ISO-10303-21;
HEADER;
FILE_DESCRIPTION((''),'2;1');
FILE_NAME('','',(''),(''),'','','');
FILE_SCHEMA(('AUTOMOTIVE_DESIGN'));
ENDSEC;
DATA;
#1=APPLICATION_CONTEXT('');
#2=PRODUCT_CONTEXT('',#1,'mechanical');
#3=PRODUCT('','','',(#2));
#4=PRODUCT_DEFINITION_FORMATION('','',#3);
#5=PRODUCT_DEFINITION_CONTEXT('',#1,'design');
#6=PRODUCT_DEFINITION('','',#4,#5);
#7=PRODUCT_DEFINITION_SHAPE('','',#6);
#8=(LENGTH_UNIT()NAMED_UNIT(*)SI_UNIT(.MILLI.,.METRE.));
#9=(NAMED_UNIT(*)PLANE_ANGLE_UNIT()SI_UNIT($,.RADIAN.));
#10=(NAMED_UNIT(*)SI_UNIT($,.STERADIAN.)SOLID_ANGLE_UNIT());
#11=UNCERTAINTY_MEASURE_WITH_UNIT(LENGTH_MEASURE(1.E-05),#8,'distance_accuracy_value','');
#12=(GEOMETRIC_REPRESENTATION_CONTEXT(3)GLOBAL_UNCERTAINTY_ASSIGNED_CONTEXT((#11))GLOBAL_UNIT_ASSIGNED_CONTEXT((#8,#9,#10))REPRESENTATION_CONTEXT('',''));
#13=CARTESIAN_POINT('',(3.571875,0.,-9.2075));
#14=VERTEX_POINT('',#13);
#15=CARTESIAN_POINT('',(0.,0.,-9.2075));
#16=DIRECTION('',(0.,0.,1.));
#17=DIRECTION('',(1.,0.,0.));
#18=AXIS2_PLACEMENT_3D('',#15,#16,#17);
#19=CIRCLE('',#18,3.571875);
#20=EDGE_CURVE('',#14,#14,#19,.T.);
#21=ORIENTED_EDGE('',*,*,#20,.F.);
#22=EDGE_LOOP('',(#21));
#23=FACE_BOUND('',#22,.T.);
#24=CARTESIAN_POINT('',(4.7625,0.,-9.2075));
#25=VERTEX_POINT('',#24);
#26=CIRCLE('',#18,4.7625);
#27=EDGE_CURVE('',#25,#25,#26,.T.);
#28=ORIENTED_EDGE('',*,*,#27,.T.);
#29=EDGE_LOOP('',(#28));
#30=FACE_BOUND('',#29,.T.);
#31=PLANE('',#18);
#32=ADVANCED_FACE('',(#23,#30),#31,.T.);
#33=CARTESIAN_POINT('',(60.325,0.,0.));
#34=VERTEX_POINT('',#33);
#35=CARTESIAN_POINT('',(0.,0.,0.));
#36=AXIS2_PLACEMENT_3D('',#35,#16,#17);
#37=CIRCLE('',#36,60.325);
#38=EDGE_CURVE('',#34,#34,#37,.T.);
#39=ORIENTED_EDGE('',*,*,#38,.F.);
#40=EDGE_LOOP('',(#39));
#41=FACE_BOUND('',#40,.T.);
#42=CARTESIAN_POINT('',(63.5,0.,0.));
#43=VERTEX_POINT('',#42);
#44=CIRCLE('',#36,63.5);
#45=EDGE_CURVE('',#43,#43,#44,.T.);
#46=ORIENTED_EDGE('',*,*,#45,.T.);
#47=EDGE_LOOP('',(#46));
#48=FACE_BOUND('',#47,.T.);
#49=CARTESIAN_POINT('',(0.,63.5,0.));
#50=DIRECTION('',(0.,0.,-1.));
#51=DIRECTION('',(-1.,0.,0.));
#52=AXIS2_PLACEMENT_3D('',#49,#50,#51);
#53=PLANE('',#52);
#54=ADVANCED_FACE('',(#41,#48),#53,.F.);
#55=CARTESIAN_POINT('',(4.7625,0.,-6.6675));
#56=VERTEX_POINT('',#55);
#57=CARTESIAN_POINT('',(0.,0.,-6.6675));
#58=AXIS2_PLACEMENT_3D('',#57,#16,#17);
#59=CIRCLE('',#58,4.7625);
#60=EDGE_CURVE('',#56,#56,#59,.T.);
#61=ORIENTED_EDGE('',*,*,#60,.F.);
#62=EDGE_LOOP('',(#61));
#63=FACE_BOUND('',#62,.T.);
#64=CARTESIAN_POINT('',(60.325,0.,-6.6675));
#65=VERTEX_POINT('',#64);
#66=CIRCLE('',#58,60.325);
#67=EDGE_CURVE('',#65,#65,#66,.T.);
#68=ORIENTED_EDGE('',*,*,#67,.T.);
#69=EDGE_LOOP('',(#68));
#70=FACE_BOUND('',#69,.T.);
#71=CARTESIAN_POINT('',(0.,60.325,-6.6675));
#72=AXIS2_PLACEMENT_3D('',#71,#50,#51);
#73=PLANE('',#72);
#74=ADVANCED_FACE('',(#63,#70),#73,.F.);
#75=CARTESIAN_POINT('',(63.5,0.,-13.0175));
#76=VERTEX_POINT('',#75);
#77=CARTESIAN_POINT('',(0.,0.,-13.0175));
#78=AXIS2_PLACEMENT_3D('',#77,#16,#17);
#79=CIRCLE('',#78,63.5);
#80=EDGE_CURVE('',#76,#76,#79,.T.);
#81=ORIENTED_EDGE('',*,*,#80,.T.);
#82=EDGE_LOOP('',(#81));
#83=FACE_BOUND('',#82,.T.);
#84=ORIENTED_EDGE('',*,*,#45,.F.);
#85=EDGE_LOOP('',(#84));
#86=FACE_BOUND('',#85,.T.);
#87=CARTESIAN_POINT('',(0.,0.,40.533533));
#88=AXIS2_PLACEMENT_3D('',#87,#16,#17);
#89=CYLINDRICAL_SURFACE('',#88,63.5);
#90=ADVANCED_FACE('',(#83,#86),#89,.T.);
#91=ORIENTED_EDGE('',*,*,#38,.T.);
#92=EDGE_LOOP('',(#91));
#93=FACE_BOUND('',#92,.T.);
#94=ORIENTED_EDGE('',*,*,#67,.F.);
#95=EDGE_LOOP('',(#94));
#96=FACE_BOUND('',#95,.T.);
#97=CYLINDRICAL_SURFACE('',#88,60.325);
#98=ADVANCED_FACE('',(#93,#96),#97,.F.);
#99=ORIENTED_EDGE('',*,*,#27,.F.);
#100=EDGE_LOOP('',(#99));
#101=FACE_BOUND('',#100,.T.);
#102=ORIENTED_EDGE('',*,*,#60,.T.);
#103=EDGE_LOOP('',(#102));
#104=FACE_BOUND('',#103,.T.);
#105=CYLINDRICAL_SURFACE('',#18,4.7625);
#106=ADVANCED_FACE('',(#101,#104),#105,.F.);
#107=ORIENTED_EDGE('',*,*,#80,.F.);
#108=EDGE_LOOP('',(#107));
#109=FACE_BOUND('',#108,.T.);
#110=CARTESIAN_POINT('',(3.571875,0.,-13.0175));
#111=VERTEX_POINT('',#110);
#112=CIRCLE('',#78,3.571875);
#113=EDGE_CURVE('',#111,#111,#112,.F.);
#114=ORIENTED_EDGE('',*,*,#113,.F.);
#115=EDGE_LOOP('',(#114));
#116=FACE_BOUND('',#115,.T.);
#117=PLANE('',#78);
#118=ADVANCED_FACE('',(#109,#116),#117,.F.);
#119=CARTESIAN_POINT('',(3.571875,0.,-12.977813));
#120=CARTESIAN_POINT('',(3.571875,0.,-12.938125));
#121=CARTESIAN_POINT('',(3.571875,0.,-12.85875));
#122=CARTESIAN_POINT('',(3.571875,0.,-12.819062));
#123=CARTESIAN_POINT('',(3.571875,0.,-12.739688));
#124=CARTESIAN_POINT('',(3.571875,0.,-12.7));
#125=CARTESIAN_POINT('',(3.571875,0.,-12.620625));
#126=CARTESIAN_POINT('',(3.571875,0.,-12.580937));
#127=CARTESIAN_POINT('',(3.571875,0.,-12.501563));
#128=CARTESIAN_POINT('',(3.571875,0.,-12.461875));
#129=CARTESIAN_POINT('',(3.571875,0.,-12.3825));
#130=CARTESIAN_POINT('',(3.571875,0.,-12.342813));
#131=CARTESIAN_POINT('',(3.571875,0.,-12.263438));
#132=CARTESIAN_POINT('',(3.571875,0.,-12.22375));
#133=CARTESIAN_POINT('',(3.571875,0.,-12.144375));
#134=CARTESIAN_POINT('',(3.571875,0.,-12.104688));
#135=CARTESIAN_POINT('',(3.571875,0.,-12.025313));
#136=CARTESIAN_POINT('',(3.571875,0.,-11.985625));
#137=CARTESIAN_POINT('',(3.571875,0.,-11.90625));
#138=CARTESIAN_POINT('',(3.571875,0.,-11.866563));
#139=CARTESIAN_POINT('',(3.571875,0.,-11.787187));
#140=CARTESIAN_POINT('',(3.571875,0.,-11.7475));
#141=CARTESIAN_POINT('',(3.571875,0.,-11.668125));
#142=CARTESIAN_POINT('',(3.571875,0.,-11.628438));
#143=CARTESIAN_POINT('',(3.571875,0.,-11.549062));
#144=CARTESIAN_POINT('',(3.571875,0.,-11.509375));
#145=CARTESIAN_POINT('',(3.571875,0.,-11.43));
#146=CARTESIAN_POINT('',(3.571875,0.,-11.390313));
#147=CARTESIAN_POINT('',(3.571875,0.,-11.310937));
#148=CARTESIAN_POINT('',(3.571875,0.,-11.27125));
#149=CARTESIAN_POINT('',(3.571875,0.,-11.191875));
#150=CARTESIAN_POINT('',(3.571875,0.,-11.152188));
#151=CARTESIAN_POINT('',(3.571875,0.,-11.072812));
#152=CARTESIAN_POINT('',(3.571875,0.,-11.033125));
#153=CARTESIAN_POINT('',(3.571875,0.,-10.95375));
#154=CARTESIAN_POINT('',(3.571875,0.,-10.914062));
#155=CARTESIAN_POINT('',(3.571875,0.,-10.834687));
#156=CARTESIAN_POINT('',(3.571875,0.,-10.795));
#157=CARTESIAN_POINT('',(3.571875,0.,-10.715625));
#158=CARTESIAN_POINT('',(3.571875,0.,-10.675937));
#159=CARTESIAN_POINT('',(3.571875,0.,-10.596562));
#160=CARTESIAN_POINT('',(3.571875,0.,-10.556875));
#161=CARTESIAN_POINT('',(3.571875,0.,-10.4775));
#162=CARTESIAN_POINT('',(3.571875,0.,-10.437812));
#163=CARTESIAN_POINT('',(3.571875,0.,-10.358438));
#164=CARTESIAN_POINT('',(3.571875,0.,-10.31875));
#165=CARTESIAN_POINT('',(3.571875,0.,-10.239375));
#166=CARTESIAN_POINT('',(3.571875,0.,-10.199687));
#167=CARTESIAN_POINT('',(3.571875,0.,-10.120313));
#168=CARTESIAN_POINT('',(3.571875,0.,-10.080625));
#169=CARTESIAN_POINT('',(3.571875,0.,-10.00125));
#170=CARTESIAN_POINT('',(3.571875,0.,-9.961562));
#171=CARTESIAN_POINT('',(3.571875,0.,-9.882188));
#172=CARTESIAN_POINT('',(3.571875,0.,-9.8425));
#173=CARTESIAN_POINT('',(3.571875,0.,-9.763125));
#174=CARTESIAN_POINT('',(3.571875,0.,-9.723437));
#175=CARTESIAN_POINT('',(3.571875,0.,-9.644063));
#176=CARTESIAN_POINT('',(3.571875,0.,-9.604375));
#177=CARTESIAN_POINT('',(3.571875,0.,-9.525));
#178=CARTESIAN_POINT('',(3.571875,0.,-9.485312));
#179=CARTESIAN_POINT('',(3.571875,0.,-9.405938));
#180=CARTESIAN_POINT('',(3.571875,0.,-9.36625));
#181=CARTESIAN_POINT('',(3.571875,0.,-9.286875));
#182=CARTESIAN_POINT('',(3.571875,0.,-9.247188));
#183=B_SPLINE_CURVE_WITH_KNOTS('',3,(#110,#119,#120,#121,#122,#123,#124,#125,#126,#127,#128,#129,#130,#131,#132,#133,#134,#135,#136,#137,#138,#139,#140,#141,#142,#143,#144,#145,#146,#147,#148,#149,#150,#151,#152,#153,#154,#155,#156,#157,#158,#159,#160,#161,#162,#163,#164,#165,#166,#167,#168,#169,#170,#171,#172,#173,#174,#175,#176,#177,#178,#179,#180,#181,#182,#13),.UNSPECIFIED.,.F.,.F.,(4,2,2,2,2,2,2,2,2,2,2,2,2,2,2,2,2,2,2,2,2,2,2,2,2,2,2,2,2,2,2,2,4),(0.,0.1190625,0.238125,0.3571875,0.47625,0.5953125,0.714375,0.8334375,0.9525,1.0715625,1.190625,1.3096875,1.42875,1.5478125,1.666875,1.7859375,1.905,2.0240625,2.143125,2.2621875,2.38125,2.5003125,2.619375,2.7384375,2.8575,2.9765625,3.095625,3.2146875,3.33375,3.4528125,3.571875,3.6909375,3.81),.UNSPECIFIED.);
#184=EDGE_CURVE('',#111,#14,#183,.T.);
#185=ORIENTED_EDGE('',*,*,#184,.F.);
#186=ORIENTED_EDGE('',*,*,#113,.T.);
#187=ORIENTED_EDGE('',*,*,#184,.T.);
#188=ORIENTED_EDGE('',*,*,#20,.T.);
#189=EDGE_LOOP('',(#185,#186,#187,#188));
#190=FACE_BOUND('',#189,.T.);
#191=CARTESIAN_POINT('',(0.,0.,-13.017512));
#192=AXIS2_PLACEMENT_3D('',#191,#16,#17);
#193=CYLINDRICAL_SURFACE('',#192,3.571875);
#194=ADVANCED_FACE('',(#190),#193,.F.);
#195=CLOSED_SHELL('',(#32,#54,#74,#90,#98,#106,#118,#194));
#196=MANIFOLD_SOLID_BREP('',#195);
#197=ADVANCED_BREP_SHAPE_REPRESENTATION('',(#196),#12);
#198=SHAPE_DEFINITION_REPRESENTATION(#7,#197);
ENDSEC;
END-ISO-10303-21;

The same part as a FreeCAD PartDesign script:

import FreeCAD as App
import Part
import Sketcher

V = App.Vector
Q = App.Units.Quantity


def add_polygon(sketch, points):
    """Adds a closed chain of lines whose ends are joined by coincident constraints."""
    first, n = sketch.GeometryCount, len(points)
    for a, b in zip(points, points[1:] + points[:1]):
        sketch.addGeometry(Part.LineSegment(App.Vector(*a, 0), App.Vector(*b, 0)), False)
    for i in range(n):
        sketch.addConstraint(Sketcher.Constraint("Coincident", first + i, 2, first + (i + 1) % n, 1))

doc = App.newDocument("Part")
body = doc.addObject("PartDesign::Body", "Body")

sketch1 = body.newObject("Sketcher::SketchObject", "Sketch")
sketch1.AttachmentSupport = (doc.getObject("YZ_Plane"), [""])
sketch1.MapMode = "FlatFace"
add_polygon(sketch1, [(63.5, 0), (60.3, 0), (60.3, -6.7), (0, -6.7), (0, -13), (63.5, -13)])
sketch1.addConstraint(Sketcher.Constraint("Horizontal", 0))
sketch1.addConstraint(Sketcher.Constraint("Vertical", 1))
sketch1.addConstraint(Sketcher.Constraint("Horizontal", 2))
sketch1.addConstraint(Sketcher.Constraint("Vertical", 3))
sketch1.addConstraint(Sketcher.Constraint("Horizontal", 4))
sketch1.addConstraint(Sketcher.Constraint("Vertical", 5))
sketch1.addConstraint(Sketcher.Constraint("PointOnObject", 0, 2, -1))
sketch1.addConstraint(Sketcher.Constraint("PointOnObject", 2, 2, -2))
sketch1.addConstraint(Sketcher.Constraint("DistanceX", 4, 1, 4, 2, Q("2.5 in")))
sketch1.addConstraint(Sketcher.Constraint("DistanceY", 3, 2, 3, 1, Q("0.25 in")))
sketch1.addConstraint(Sketcher.Constraint("DistanceX", 0, 2, 0, 1, Q("0.125 in")))
sketch1.addConstraint(Sketcher.Constraint("DistanceY", 1, 2, 1, 1, Q("0.2625 in")))
revolution = body.newObject("PartDesign::Revolution", "Revolution")
revolution.Profile = sketch1
revolution.ReferenceAxis = (sketch1, ["V_Axis"])
revolution.Angle = 360

sketch2 = body.newObject("Sketcher::SketchObject", "Sketch001")
sketch2.AttachmentSupport = (doc.getObject("XY_Plane"), [""])
sketch2.MapMode = "FlatFace"
sketch2.AttachmentOffset = App.Placement(V(0, 0, -0.5125 * 25.4), App.Rotation())
sketch2.addGeometry(Part.Circle(V(0, 0, 0), V(0, 0, 1), 3.6), False)
sketch2.addConstraint(Sketcher.Constraint("Coincident", 0, 3, -1, 1))
sketch2.addConstraint(Sketcher.Constraint("Diameter", 0, Q("0.28125 in")))
pocket1 = body.newObject("PartDesign::Pocket", "Pocket")
pocket1.Profile = sketch2
pocket1.Type = "UpToFirst"
pocket1.Reversed = True

sketch3 = body.newObject("Sketcher::SketchObject", "Sketch002")
sketch3.AttachmentSupport = (doc.getObject("XY_Plane"), [""])
sketch3.MapMode = "FlatFace"
sketch3.AttachmentOffset = App.Placement(V(0, 0, -0.5125 * 25.4), App.Rotation())
sketch3.addGeometry(Part.Circle(V(0, 0, 0), V(0, 0, 1), 3.6), False)
sketch3.addConstraint(Sketcher.Constraint("Coincident", 0, 3, -1, 1))
sketch3.addConstraint(Sketcher.Constraint("Diameter", 0, Q("0.28125 in")))
pocket2 = body.newObject("PartDesign::Pocket", "Pocket001")
pocket2.Profile = sketch3
pocket2.Length = 91.741145

sketch4 = body.newObject("Sketcher::SketchObject", "Sketch003")
sketch4.AttachmentSupport = (doc.getObject("XY_Plane"), [""])
sketch4.MapMode = "FlatFace"
sketch4.AttachmentOffset = App.Placement(V(0, 0, -0.2625 * 25.4), App.Rotation())
sketch4.addGeometry(Part.Circle(V(0, 0, 0), V(0, 0, 1), 4.8), False)
sketch4.addConstraint(Sketcher.Constraint("Coincident", 0, 3, -1, 1))
sketch4.addConstraint(Sketcher.Constraint("Diameter", 0, Q("0.375 in")))
pocket3 = body.newObject("PartDesign::Pocket", "Pocket002")
pocket3.Profile = sketch4
pocket3.Length = Q("0.1 in")

doc.recompute()
